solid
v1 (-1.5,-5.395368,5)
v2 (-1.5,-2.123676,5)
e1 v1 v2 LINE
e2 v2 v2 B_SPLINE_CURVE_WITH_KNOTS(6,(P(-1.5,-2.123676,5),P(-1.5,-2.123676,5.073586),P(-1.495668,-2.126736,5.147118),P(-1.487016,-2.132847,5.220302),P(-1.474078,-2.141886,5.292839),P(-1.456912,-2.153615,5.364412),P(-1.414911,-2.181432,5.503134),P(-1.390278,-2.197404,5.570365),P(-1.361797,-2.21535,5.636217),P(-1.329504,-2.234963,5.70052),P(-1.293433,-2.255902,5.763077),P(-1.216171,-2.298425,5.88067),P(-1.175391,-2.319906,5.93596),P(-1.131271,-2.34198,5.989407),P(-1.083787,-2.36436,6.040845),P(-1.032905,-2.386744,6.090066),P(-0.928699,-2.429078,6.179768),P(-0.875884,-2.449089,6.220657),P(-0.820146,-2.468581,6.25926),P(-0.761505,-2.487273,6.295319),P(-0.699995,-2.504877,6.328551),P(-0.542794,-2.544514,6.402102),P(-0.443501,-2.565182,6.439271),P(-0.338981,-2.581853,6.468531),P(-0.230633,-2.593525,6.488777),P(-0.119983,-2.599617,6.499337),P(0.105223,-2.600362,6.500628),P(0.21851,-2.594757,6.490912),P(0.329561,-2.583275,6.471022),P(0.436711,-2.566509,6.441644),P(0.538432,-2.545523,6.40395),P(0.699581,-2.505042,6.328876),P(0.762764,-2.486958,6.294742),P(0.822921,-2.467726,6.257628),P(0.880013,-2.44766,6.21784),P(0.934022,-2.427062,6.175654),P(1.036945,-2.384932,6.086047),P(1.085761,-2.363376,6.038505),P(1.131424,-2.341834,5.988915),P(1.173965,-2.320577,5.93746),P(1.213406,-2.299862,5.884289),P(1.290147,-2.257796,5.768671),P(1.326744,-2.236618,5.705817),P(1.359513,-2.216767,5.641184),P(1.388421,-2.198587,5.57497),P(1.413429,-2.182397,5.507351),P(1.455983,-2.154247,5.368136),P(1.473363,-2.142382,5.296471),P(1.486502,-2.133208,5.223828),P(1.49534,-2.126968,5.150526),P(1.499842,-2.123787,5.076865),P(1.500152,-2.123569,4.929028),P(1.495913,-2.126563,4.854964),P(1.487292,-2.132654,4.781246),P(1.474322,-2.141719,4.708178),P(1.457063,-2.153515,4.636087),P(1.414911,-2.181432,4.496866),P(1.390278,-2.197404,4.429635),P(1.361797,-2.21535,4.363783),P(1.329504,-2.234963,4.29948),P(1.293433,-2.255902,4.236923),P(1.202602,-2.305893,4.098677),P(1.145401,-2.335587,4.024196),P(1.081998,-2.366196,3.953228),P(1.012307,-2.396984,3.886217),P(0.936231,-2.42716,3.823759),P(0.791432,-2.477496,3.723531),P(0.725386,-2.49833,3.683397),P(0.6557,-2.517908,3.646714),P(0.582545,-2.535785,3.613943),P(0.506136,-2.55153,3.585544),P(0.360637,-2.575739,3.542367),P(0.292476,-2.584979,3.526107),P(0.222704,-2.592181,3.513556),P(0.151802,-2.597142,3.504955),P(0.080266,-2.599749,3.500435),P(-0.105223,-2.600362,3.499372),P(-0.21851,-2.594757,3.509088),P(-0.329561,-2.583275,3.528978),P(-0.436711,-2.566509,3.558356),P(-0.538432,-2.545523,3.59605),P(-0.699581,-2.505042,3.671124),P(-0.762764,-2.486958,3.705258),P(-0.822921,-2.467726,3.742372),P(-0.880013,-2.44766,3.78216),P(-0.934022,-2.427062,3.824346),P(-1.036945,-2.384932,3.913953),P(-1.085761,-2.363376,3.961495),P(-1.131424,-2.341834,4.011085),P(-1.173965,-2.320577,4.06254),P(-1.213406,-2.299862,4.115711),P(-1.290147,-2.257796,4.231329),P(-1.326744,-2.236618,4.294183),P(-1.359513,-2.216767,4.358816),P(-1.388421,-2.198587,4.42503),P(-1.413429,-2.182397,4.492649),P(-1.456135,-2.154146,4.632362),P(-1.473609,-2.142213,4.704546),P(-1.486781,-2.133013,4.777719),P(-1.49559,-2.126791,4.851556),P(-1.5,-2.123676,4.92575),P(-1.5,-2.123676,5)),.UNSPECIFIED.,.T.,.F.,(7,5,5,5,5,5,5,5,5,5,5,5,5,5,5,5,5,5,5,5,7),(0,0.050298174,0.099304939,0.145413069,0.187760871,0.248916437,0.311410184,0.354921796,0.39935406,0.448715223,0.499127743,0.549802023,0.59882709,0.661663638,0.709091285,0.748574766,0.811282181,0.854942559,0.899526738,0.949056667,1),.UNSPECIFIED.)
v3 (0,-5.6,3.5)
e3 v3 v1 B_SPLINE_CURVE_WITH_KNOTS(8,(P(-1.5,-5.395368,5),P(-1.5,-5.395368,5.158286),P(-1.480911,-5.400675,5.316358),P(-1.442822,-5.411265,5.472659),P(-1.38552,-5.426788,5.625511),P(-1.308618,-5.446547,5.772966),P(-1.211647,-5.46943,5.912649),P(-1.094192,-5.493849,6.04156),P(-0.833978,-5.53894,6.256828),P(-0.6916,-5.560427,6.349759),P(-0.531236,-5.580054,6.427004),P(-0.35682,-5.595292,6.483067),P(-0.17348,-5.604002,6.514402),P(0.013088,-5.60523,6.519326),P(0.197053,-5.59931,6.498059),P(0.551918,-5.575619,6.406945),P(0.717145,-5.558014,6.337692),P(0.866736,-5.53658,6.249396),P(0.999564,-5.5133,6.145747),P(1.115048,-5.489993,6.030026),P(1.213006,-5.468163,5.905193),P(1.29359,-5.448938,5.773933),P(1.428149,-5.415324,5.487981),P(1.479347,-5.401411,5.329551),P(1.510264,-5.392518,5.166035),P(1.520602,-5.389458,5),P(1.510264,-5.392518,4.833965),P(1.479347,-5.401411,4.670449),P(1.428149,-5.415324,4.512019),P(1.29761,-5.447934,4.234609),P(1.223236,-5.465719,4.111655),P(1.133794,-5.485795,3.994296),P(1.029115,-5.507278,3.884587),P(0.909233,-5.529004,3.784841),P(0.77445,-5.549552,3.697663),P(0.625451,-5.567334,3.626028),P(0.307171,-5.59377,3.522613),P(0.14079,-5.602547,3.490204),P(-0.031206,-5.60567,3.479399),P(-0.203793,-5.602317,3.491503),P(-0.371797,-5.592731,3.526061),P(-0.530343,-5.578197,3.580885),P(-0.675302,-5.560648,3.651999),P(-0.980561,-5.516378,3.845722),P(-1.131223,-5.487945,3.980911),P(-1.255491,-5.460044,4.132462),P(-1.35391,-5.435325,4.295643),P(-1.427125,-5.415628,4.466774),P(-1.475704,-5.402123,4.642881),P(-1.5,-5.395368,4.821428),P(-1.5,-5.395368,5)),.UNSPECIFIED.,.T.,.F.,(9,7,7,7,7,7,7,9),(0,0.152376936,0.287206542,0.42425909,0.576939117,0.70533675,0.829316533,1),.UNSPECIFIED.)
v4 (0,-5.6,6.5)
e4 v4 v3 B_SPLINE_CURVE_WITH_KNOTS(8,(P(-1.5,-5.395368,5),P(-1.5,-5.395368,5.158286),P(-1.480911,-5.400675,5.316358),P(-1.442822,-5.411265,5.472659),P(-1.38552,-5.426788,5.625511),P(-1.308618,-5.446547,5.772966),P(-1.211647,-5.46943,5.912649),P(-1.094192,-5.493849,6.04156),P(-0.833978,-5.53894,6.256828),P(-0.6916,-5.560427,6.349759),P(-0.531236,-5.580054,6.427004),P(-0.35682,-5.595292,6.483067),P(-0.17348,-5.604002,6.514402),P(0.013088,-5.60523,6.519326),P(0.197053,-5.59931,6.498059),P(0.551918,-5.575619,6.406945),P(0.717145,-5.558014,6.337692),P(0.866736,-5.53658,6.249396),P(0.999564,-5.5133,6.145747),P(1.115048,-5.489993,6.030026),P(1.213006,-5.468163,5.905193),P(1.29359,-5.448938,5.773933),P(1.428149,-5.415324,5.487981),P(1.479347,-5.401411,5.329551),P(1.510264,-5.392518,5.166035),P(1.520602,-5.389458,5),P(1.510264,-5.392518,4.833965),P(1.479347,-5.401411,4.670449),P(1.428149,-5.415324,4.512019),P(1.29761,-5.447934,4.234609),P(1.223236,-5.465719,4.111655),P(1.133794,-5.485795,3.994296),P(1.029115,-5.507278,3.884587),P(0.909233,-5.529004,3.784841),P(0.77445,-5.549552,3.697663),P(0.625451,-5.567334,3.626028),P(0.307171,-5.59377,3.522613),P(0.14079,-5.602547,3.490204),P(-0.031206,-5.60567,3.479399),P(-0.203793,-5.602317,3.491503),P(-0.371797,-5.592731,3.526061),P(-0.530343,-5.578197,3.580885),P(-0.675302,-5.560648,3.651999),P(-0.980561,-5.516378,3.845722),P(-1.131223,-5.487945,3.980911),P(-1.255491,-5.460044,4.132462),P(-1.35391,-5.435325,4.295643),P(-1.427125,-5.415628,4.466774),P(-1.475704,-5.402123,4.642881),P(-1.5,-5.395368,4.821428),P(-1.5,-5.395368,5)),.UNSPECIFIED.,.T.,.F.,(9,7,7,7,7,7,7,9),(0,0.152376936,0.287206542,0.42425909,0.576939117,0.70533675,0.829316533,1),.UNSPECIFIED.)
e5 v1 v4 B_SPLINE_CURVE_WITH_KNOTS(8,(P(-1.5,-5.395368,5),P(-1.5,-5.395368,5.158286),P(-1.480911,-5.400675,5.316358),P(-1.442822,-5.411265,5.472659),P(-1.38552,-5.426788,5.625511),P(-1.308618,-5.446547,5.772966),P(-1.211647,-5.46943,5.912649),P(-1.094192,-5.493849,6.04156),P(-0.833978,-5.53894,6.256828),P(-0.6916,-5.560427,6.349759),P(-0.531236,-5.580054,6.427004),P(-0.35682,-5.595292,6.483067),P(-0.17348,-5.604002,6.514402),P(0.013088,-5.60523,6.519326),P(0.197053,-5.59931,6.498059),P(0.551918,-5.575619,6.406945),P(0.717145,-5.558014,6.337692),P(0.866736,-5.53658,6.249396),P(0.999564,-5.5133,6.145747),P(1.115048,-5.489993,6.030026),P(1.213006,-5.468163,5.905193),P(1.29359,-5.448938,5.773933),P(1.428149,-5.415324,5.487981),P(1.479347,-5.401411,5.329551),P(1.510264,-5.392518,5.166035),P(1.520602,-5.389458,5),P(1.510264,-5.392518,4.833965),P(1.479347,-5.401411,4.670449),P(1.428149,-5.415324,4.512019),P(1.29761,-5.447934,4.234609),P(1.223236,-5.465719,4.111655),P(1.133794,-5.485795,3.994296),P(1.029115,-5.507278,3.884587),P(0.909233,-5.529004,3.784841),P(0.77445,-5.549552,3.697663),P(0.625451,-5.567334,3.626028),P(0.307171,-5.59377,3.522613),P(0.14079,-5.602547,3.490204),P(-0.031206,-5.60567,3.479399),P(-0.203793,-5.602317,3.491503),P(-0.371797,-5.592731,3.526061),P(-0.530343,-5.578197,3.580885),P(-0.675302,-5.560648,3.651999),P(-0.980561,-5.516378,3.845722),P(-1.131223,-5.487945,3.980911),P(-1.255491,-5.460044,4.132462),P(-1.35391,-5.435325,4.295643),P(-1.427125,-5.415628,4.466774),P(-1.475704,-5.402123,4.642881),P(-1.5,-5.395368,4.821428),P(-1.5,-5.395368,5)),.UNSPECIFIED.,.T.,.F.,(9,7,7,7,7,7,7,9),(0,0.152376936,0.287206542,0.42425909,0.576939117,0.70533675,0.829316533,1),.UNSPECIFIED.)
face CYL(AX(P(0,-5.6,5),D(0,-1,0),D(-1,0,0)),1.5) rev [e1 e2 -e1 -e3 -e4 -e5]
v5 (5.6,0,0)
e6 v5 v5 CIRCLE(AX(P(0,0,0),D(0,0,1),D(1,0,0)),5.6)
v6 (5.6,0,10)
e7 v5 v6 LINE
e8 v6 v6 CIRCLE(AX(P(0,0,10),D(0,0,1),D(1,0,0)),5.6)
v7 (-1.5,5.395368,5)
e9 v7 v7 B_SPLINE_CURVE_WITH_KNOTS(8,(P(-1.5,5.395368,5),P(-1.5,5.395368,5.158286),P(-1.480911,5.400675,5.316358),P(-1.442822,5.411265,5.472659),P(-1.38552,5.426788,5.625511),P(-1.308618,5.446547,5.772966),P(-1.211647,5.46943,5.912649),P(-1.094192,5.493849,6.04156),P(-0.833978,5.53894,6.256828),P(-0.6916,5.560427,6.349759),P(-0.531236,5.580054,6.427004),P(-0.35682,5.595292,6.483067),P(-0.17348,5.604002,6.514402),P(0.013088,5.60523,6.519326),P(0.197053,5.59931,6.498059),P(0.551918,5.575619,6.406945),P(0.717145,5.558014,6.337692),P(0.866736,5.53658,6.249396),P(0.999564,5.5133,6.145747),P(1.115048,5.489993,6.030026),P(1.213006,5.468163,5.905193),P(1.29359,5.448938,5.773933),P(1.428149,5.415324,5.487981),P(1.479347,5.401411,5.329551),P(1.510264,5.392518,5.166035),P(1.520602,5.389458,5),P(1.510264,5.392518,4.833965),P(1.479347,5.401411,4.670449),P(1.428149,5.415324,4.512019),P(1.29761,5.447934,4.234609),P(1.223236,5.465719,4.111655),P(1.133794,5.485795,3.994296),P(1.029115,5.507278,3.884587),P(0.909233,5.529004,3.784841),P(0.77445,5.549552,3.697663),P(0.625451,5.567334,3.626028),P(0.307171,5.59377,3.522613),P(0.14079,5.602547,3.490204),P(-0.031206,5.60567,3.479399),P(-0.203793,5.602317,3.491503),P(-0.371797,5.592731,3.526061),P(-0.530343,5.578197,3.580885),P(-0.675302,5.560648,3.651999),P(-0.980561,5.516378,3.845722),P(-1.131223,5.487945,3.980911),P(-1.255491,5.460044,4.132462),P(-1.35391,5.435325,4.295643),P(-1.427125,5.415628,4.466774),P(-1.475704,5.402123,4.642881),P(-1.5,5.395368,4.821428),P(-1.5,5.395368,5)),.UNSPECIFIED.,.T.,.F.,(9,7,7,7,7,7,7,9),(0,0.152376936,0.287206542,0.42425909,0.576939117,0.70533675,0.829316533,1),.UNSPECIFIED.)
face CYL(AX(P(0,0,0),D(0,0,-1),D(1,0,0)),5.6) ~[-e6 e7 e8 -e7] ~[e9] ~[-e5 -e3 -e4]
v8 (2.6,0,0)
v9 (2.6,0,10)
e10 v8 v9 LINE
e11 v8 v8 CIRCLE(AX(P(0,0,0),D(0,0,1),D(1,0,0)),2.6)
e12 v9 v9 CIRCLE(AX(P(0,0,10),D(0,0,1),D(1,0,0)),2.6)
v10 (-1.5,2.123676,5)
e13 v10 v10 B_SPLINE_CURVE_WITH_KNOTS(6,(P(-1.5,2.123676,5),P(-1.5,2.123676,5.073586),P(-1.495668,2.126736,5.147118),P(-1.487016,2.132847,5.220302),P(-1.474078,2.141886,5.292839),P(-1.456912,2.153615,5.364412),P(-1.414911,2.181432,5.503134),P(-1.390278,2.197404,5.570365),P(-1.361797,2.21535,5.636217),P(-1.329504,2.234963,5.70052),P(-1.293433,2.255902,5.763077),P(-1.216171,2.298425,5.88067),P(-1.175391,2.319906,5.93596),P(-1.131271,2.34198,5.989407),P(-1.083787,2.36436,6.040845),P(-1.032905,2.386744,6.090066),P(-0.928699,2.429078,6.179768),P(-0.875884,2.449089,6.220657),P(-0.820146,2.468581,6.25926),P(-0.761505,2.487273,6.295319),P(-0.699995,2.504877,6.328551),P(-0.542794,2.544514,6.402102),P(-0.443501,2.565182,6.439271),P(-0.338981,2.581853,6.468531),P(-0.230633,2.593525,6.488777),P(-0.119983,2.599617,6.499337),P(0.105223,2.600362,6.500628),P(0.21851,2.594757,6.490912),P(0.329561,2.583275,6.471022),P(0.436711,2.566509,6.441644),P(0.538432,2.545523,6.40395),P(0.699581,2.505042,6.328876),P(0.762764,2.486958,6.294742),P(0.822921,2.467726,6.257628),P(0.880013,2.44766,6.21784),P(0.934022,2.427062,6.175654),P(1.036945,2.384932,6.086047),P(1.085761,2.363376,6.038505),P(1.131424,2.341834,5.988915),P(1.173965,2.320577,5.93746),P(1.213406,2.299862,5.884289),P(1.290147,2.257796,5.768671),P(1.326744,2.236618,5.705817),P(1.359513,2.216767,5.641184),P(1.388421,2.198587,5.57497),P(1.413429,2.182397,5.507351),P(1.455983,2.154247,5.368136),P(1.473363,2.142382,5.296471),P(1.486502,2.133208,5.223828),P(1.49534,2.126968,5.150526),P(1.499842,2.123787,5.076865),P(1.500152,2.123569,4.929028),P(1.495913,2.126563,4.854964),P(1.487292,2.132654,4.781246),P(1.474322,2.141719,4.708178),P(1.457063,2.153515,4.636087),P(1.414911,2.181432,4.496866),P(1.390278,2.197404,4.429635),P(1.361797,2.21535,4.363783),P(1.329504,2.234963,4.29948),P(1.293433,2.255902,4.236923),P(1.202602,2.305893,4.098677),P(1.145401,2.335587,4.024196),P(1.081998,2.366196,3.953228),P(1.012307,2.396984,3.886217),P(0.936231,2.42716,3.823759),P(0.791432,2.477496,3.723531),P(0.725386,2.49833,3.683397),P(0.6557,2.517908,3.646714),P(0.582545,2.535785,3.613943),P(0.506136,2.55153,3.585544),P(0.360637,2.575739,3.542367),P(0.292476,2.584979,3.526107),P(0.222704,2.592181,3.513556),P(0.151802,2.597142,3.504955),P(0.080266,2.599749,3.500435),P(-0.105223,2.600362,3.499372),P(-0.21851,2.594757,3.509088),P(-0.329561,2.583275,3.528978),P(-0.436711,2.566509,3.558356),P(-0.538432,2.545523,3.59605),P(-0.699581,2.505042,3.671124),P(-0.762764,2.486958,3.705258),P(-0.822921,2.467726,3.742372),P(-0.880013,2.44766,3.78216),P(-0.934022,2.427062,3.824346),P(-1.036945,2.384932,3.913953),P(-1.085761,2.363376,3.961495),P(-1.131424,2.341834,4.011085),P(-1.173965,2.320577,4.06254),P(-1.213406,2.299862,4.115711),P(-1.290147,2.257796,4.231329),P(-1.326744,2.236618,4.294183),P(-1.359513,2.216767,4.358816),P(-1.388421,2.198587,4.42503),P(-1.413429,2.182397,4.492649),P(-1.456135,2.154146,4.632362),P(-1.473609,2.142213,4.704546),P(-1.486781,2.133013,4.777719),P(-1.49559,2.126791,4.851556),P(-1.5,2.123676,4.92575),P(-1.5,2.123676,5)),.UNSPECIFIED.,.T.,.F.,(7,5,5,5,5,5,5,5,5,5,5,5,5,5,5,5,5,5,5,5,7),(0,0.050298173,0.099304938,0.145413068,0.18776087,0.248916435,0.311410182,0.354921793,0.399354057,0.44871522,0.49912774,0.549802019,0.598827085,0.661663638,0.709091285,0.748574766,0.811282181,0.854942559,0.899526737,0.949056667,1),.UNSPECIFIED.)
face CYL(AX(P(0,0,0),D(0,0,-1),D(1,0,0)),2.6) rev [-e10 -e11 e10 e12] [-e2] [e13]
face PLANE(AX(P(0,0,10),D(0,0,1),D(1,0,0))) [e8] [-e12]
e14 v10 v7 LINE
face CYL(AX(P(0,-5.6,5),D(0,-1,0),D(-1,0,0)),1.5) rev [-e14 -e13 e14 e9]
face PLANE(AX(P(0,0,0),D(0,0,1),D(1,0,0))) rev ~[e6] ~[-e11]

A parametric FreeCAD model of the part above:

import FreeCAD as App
import Part
import Sketcher

V = App.Vector
Q = App.Units.Quantity

doc = App.newDocument("Part")
body = doc.addObject("PartDesign::Body", "Body")

sketch1 = body.newObject("Sketcher::SketchObject", "Sketch")
sketch1.AttachmentSupport = (doc.getObject("XY_Plane"), [""])
sketch1.MapMode = "FlatFace"
sketch1.addGeometry([
    Part.Circle(V(0, 0, 0), V(0, 0, 1), 5.6),
    Part.Circle(V(0, 0, 0), V(0, 0, 1), 2.6),
], False)
sketch1.addConstraint([
    Sketcher.Constraint("Coincident", 0, 3, -1, 1),
    Sketcher.Constraint("Coincident", 1, 3, -1, 1),
    Sketcher.Constraint("Diameter", 1, Q("5.2 mm")),
    Sketcher.Constraint("Diameter", 0, Q("11.2 mm")),
])
pad1 = body.newObject("PartDesign::Pad", "Pad")
pad1.Profile = sketch1
pad1.Length = 10

sketch2 = body.newObject("Sketcher::SketchObject", "Sketch001")
sketch2.AttachmentSupport = (doc.getObject("XZ_Plane"), [""])
sketch2.MapMode = "FlatFace"
sketch2.AttachmentOffset = App.Placement(V(0, 0, 5.6), App.Rotation())
sketch2.addGeometry(Part.Circle(V(0, 5, 0), V(0, 0, 1), 1.5), False)
sketch2.addConstraint([
    Sketcher.Constraint("PointOnObject", 0, 3, -2),
    Sketcher.Constraint("Diameter", 0, Q("3 mm")),
    Sketcher.Constraint("DistanceY", -1, 1, 0, 3, Q("5 mm")),
])
pocket1 = body.newObject("PartDesign::Pocket", "Pocket")
pocket1.Profile = sketch2
pocket1.Type = "ThroughAll"

doc.recompute()
